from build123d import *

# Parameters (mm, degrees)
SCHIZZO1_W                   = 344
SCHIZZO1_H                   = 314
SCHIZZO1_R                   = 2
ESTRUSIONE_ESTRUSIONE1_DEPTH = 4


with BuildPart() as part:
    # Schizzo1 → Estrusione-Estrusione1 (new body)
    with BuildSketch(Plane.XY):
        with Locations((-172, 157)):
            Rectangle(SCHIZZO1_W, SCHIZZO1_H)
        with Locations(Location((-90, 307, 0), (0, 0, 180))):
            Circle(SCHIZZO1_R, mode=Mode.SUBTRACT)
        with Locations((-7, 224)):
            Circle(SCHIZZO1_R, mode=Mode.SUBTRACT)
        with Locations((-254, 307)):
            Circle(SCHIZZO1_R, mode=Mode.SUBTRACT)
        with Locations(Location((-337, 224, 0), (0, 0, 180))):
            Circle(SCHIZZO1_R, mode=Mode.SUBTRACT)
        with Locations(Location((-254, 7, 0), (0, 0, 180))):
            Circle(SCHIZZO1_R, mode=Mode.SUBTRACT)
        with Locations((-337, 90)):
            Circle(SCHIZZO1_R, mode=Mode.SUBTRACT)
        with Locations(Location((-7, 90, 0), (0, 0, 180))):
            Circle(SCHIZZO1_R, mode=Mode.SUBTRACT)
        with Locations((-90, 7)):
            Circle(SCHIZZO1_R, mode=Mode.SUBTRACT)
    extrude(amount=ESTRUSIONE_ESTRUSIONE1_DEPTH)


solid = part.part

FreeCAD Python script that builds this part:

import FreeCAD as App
import Part
import Sketcher


def add_polygon(sketch, points):
    """Adds a closed chain of lines whose ends are joined by coincident constraints."""
    first, n = sketch.GeometryCount, len(points)
    for a, b in zip(points, points[1:] + points[:1]):
        sketch.addGeometry(Part.LineSegment(App.Vector(*a, 0), App.Vector(*b, 0)), False)
    for i in range(n):
        sketch.addConstraint(Sketcher.Constraint("Coincident", first + i, 2, first + (i + 1) % n, 1))

doc = App.newDocument("Part")
body = doc.addObject("PartDesign::Body", "Body")

sketch1 = body.newObject("Sketcher::SketchObject", "Sketch")
sketch1.AttachmentSupport = (doc.getObject("XY_Plane"), [""])
sketch1.MapMode = "FlatFace"
add_polygon(sketch1, [(-344, 314), (-344, 0), (0, 0), (0, 314)])
sketch1.addGeometry(Part.Circle(App.Vector(-254, 7, 0), App.Vector(0, 0, 1), 2), False)
sketch1.addGeometry(Part.Circle(App.Vector(-337, 90, 0), App.Vector(0, 0, 1), 2), False)
sketch1.addGeometry(Part.Circle(App.Vector(-90, 7, 0), App.Vector(0, 0, 1), 2), False)
sketch1.addGeometry(Part.Circle(App.Vector(-7, 90, 0), App.Vector(0, 0, 1), 2), False)
sketch1.addGeometry(Part.Circle(App.Vector(-337, 224, 0), App.Vector(0, 0, 1), 2), False)
sketch1.addGeometry(Part.Circle(App.Vector(-254, 307, 0), App.Vector(0, 0, 1), 2), False)
sketch1.addGeometry(Part.Circle(App.Vector(-7, 224, 0), App.Vector(0, 0, 1), 2), False)
sketch1.addGeometry(Part.Circle(App.Vector(-90, 307, 0), App.Vector(0, 0, 1), 2), False)
sketch1.addConstraint([
    Sketcher.Constraint("Vertical", 0),
    Sketcher.Constraint("Horizontal", 1),
    Sketcher.Constraint("Vertical", 2),
    Sketcher.Constraint("Horizontal", 3),
    Sketcher.Constraint("Coincident", 1, 2, -1, 1),
    Sketcher.Constraint("Equal", 4, 5),
    Sketcher.Constraint("Equal", 5, 6),
    Sketcher.Constraint("Equal", 6, 7),
    Sketcher.Constraint("Equal", 7, 8),
    Sketcher.Constraint("Equal", 8, 9),
    Sketcher.Constraint("Equal", 9, 10),
    Sketcher.Constraint("Equal", 10, 11),
    Sketcher.Constraint("Horizontal", 4, 3, 6, 3),
    Sketcher.Constraint("Horizontal", 5, 3, 7, 3),
    Sketcher.Constraint("Horizontal", 8, 3, 10, 3),
    Sketcher.Constraint("Horizontal", 9, 3, 11, 3),
    Sketcher.Constraint("Vertical", 5, 3, 8, 3),
    Sketcher.Constraint("Vertical", 4, 3, 9, 3),
    Sketcher.Constraint("Vertical", 7, 3, 10, 3),
    Sketcher.Constraint("Vertical", 6, 3, 11, 3),
    Sketcher.Constraint("Diameter", 4, 4.0),
    Sketcher.Constraint("DistanceX", 1, 1, 1, 2, 344.0),
    Sketcher.Constraint("DistanceY", 0, 2, 0, 1, 314.0),
    Sketcher.Constraint("DistanceX", 4, 3, -1, 1, 254.0),
    Sketcher.Constraint("DistanceY", -1, 1, 4, 3, 7.0),
    Sketcher.Constraint("DistanceX", 5, 3, -1, 1, 337.0),
    Sketcher.Constraint("DistanceY", -1, 1, 5, 3, 90.0),
    Sketcher.Constraint("DistanceX", 6, 3, -1, 1, 90.0),
    Sketcher.Constraint("DistanceX", 7, 3, -1, 1, 7.0),
    Sketcher.Constraint("DistanceY", -1, 1, 8, 3, 224.0),
    Sketcher.Constraint("DistanceY", -1, 1, 9, 3, 307.0),
])
pad1 = body.newObject("PartDesign::Pad", "Pad")
pad1.Profile = sketch1
pad1.Length = 4

doc.recompute()
